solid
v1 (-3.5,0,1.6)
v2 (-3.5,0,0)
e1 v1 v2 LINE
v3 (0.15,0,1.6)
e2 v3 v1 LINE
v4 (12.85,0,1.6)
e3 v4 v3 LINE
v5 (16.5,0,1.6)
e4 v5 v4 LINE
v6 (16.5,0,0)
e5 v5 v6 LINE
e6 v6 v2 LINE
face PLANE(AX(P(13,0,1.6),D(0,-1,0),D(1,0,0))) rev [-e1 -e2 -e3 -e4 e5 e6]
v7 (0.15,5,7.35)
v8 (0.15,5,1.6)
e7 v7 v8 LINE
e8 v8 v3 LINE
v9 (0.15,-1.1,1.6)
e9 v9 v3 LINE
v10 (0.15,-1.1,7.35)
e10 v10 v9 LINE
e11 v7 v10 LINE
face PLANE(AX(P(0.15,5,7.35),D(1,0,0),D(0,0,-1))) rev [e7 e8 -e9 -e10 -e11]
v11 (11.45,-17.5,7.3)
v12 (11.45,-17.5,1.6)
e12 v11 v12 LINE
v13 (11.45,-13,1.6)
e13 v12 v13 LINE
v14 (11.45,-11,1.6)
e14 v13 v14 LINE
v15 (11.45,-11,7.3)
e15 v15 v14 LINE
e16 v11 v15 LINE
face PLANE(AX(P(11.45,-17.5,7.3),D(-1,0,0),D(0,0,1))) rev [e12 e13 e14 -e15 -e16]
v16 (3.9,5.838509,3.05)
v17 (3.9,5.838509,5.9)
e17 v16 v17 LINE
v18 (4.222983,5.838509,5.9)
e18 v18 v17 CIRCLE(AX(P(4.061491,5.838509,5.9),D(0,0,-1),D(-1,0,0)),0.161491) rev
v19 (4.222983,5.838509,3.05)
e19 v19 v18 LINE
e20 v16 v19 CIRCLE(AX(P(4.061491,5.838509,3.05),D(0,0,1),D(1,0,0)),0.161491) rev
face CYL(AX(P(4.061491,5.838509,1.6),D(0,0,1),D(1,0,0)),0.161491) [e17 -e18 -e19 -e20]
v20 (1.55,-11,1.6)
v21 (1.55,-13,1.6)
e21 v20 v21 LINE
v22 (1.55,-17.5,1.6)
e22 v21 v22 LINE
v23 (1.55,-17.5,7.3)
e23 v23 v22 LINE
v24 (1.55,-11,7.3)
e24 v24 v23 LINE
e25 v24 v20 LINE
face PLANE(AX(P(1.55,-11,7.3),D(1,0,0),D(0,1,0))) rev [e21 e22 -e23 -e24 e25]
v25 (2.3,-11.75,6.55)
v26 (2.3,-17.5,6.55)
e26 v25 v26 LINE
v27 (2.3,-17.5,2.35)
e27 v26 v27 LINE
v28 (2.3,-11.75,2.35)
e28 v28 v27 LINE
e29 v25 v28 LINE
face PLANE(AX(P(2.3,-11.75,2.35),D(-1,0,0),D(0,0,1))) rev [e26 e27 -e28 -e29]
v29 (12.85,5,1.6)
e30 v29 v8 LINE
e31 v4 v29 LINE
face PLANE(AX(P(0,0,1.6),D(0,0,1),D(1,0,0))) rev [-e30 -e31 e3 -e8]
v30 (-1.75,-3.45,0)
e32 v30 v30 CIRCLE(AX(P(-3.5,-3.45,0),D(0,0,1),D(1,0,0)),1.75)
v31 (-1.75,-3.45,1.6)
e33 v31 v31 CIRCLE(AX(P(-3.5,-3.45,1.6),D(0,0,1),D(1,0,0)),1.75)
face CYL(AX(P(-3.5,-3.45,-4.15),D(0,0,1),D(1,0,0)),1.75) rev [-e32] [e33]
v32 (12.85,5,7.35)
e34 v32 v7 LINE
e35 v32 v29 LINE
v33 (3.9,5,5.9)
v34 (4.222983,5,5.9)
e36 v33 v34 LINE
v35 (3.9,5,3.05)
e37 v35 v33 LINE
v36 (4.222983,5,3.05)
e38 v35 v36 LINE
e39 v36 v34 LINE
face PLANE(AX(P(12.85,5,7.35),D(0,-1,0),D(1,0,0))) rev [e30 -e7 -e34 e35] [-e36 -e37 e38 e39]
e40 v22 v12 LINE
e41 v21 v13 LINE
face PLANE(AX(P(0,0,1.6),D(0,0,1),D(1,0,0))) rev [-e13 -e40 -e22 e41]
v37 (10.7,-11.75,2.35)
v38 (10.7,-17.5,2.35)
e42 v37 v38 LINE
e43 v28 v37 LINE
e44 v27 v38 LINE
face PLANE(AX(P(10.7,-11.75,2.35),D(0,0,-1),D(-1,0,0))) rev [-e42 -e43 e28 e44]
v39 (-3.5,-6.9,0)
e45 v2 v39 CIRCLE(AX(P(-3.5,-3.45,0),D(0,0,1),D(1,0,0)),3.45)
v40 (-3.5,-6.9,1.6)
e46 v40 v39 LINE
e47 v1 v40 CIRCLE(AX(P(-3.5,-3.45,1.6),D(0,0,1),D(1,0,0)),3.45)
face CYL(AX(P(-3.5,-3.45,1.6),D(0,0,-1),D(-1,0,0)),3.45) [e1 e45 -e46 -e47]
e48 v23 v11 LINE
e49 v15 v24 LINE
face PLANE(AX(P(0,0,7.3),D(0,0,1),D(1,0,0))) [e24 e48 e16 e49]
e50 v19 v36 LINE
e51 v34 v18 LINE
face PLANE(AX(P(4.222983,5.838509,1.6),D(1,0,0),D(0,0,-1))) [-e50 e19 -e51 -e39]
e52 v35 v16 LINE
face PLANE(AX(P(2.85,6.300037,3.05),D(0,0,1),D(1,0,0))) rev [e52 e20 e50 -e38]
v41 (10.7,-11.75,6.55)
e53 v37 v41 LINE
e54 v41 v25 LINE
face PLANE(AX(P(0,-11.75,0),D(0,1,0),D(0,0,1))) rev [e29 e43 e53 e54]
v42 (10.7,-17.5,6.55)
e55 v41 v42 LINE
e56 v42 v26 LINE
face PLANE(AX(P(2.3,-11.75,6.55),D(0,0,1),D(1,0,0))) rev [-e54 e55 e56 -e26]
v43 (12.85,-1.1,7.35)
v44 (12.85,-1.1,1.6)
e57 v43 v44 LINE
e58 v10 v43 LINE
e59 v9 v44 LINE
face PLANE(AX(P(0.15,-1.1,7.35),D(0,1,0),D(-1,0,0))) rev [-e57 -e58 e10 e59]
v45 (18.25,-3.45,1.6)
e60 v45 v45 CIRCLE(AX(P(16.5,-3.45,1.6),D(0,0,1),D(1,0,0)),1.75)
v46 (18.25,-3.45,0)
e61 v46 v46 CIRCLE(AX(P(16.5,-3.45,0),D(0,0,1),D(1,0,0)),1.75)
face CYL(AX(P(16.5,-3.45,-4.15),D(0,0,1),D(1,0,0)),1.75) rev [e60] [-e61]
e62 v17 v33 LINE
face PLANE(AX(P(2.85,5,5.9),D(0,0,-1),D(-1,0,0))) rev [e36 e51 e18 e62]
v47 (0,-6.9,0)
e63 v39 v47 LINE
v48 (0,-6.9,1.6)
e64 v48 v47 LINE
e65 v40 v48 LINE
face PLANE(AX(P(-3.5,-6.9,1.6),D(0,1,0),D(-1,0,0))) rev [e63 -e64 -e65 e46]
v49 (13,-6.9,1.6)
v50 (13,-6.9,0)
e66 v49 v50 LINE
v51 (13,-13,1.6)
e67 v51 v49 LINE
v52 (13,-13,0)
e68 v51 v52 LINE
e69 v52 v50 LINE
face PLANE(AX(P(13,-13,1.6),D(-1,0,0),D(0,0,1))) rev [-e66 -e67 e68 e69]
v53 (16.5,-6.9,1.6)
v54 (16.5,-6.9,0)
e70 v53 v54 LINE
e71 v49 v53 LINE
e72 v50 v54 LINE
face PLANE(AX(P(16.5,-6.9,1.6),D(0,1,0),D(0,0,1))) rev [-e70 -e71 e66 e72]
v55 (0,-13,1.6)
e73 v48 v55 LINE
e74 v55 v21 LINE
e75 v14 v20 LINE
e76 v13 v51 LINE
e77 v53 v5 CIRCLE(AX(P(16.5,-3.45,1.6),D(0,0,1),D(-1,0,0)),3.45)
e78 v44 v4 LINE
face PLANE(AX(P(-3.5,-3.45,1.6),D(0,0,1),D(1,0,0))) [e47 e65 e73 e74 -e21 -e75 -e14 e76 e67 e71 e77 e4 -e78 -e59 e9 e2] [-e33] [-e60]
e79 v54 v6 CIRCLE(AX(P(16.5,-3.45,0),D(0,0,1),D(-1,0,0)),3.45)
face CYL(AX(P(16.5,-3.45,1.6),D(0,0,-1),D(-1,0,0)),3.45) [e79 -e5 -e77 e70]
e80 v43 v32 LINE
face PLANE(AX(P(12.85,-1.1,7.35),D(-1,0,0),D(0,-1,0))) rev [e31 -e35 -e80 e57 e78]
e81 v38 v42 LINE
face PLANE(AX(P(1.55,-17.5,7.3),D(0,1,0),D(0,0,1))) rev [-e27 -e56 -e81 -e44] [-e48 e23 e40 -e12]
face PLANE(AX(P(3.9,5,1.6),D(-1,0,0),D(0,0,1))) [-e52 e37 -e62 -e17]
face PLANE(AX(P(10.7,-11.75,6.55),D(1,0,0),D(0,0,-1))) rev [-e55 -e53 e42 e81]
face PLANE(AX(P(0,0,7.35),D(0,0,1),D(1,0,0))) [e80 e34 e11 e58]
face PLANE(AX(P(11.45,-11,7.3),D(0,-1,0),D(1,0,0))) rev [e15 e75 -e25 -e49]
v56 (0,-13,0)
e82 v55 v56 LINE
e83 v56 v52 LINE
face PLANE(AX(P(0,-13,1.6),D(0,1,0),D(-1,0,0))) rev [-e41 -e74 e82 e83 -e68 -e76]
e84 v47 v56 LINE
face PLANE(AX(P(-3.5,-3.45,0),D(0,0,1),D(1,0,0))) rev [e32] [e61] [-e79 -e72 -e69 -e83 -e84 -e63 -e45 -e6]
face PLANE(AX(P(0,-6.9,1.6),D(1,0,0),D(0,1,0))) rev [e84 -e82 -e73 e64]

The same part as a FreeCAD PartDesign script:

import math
import FreeCAD as App
import Part
import Sketcher

V = App.Vector
Q = App.Units.Quantity


def add_polygon(sketch, points):
    """Adds a closed chain of lines whose ends are joined by coincident constraints."""
    first, n = sketch.GeometryCount, len(points)
    for a, b in zip(points, points[1:] + points[:1]):
        sketch.addGeometry(Part.LineSegment(App.Vector(*a, 0), App.Vector(*b, 0)), False)
    for i in range(n):
        sketch.addConstraint(Sketcher.Constraint("Coincident", first + i, 2, first + (i + 1) % n, 1))

doc = App.newDocument("Part")
body = doc.addObject("PartDesign::Body", "Body")

# Sketch on XY plane
sketch1 = body.newObject("Sketcher::SketchObject", "Sketch")
sketch1.AttachmentSupport = (doc.getObject("XY_Plane"), [""])
sketch1.MapMode = "FlatFace"
sketch1.addGeometry([
    Part.LineSegment(V(0, -6.9, 0), V(0, -13, 0)),  # 0
    Part.LineSegment(V(0, -13, 0), V(13, -13, 0)),  # 1
    Part.LineSegment(V(13, -13, 0), V(13, -6.9, 0)),  # 2
    Part.LineSegment(V(13, -6.9, 0), V(16.5, -6.9, 0)),  # 3
    Part.ArcOfCircle(Part.Circle(V(16.5, -3.5, 0), V(0, 0, 1), 3.5), math.radians(-90), math.radians(90)),  # 4
    Part.LineSegment(V(16.5, 0, 0), V(-3.5, 0, 0)),  # 5
    Part.ArcOfCircle(Part.Circle(V(-3.5, -3.5, 0), V(0, 0, 1), 3.5), math.radians(90), math.radians(270)),  # 6
    Part.LineSegment(V(-3.5, -6.9, 0), V(0, -6.9, 0)),  # 7
], False)
sketch1.addConstraint([
    Sketcher.Constraint("Coincident", 0, 2, 1, 1),
    Sketcher.Constraint("Coincident", 1, 2, 2, 1),
    Sketcher.Constraint("Coincident", 2, 2, 3, 1),
    Sketcher.Constraint("Tangent", 3, 2, 4, 1),
    Sketcher.Constraint("Tangent", 4, 2, 5, 1),
    Sketcher.Constraint("Tangent", 5, 2, 6, 1),
    Sketcher.Constraint("Tangent", 6, 2, 7, 1),
    Sketcher.Constraint("Coincident", 7, 2, 0, 1),
    Sketcher.Constraint("Vertical", 0),
    Sketcher.Constraint("Horizontal", 1),
    Sketcher.Constraint("Vertical", 2),
    Sketcher.Constraint("Horizontal", 3),
    Sketcher.Constraint("Horizontal", 5),
    Sketcher.Constraint("Horizontal", 7),
    Sketcher.Constraint("Equal", 4, 6),
    Sketcher.Constraint("PointOnObject", 0, 2, -2),
    Sketcher.Constraint("PointOnObject", 4, 2, -1),
    Sketcher.Constraint("Equal", 3, 7),
    Sketcher.Constraint("DistanceX", 1, 1, 1, 2, Q("13 mm")),
    Sketcher.Constraint("DistanceX", 5, 2, 5, 1, Q("20 mm")),
    Sketcher.Constraint("Radius", 4, Q("3.45 mm")),
    Sketcher.Constraint("DistanceY", 0, 2, 0, 1, Q("6.1 mm")),
])
pad1 = body.newObject("PartDesign::Pad", "Pad")
pad1.Profile = sketch1
pad1.Length = 1.6

# Sketch on XY plane
sketch2 = body.newObject("Sketcher::SketchObject", "Sketch001")
sketch2.AttachmentSupport = (doc.getObject("XY_Plane"), [""])
sketch2.MapMode = "FlatFace"
sketch2.AttachmentOffset = App.Placement(V(0, 0, 1.6), App.Rotation())
add_polygon(sketch2, [(2, -11), (2, -18), (11, -18), (11, -11)])  # lines 0-3
sketch2.addConstraint([
    Sketcher.Constraint("Vertical", 0),
    Sketcher.Constraint("Horizontal", 1),
    Sketcher.Constraint("Vertical", 2),
    Sketcher.Constraint("Horizontal", 3),
    Sketcher.Constraint("DistanceX", 1, 1, 1, 2, Q("9.9 mm")),
    Sketcher.Constraint("DistanceY", 0, 2, 0, 1, Q("6.5 mm")),
    Sketcher.Constraint("DistanceY", 2, 2, -1, 1, Q("11 mm")),
    Sketcher.Constraint("DistanceX", -1, 1, 0, 2, Q("1.55 mm")),
])
pad2 = body.newObject("PartDesign::Pad", "Pad001")
pad2.Profile = sketch2
pad2.Length = 5.7

# Sketch on XZ plane
sketch3 = body.newObject("Sketcher::SketchObject", "Sketch002")
sketch3.AttachmentSupport = (doc.getObject("XZ_Plane"), [""])
sketch3.MapMode = "FlatFace"
sketch3.AttachmentOffset = App.Placement(V(0, 0, 17.5), App.Rotation())
add_polygon(sketch3, [(2.3, 6.5), (2.3, 2.4), (10.7, 2.4), (10.7, 6.5)])  # lines 0-3
sketch3.addConstraint([
    Sketcher.Constraint("Vertical", 0),
    Sketcher.Constraint("Horizontal", 1),
    Sketcher.Constraint("Vertical", 2),
    Sketcher.Constraint("Horizontal", 3),
    Sketcher.Constraint("DistanceX", 1, 1, 1, 2, Q("8.4 mm")),
    Sketcher.Constraint("DistanceY", 0, 2, 0, 1, Q("4.2 mm")),
    Sketcher.Constraint("DistanceX", -1, 1, 0, 2, Q("2.3 mm")),
    Sketcher.Constraint("DistanceY", -1, 1, 0, 2, Q("2.35 mm")),
])
pocket1 = body.newObject("PartDesign::Pocket", "Pocket")
pocket1.Profile = sketch3
pocket1.Length = 5.75

# Sketch on XY plane
sketch4 = body.newObject("Sketcher::SketchObject", "Sketch003")
sketch4.AttachmentSupport = (doc.getObject("XY_Plane"), [""])
sketch4.MapMode = "FlatFace"
sketch4.AttachmentOffset = App.Placement(V(0, 0, 1.6), App.Rotation())
sketch4.addGeometry([
    Part.Circle(V(-3.5, -3.5, 0), V(0, 0, 1), 1.8),
    Part.Circle(V(16.5, -3.5, 0), V(0, 0, 1), 1.8),
], False)
sketch4.addConstraint([
    Sketcher.Constraint("Equal", 0, 1),
    Sketcher.Constraint("Horizontal", 0, 3, 1, 3),
    Sketcher.Constraint("Diameter", 0, Q("3.5 mm")),
    Sketcher.Constraint("DistanceX", 0, 3, 1, 3, Q("20 mm")),
    Sketcher.Constraint("DistanceX", 0, 3, -1, 1, Q("3.5 mm")),
    Sketcher.Constraint("DistanceY", 0, 3, -1, 1, Q("3.45 mm")),
])
pocket2 = body.newObject("PartDesign::Pocket", "Pocket001")
pocket2.Profile = sketch4
pocket2.Length = 5.75

# Sketch on XY plane
sketch5 = body.newObject("Sketcher::SketchObject", "Sketch004")
sketch5.AttachmentSupport = (doc.getObject("XY_Plane"), [""])
sketch5.MapMode = "FlatFace"
sketch5.AttachmentOffset = App.Placement(V(0, 0, 1.6), App.Rotation())
add_polygon(sketch5, [(0, 5), (0, -1), (13, -1), (13, 5)])  # lines 0-3
sketch5.addConstraint([
    Sketcher.Constraint("Vertical", 0),
    Sketcher.Constraint("Horizontal", 1),
    Sketcher.Constraint("Vertical", 2),
    Sketcher.Constraint("Horizontal", 3),
    Sketcher.Constraint("DistanceX", 1, 1, 1, 2, Q("12.7 mm")),
    Sketcher.Constraint("DistanceY", 0, 2, 0, 1, Q("6.1 mm")),
    Sketcher.Constraint("DistanceY", -1, 1, 2, 2, Q("5 mm")),
    Sketcher.Constraint("DistanceX", -1, 1, 0, 2, Q("0.15 mm")),
])
pad3 = body.newObject("PartDesign::Pad", "Pad002")
pad3.Profile = sketch5
pad3.Length = 5.75

# Sketch on XY plane
sketch6 = body.newObject("Sketcher::SketchObject", "Sketch005")
sketch6.AttachmentSupport = (doc.getObject("XY_Plane"), [""])
sketch6.MapMode = "FlatFace"
sketch6.AttachmentOffset = App.Placement(V(0, 0, 7.35), App.Rotation())
sketch6.addGeometry([
    Part.LineSegment(V(3.9, 5.84, 0), V(3.9, 5, 0)),
    Part.LineSegment(V(3.9, 5, 0), V(4.22, 5, 0)),
    Part.LineSegment(V(4.22, 5, 0), V(4.22, 5.84, 0)),
    Part.ArcOfCircle(Part.Circle(V(4.06, 5.84, 0), V(0, 0, 1), 0.16), math.radians(0), math.radians(180)),
], False)
sketch6.addConstraint([
    Sketcher.Constraint("Coincident", 0, 2, 1, 1),
    Sketcher.Constraint("Coincident", 1, 2, 2, 1),
    Sketcher.Constraint("Tangent", 2, 2, 3, 1),
    Sketcher.Constraint("Tangent", 3, 2, 0, 1),
    Sketcher.Constraint("Vertical", 0),
    Sketcher.Constraint("Horizontal", 1),
    Sketcher.Constraint("Vertical", 2),
    Sketcher.Constraint("DistanceY", -1, 1, 0, 2, Q("5 mm")),
    Sketcher.Constraint("DistanceX", -1, 1, 0, 2, Q("3.9 mm")),
    Sketcher.Constraint("Radius", 3, Q("0.161491 mm")),
    Sketcher.Constraint("DistanceY", 0, 2, 0, 1, Q("0.838509 mm")),
])
pad4 = body.newObject("PartDesign::Pad", "Pad003")
pad4.Profile = sketch6
pad4.Length = 5.75
pad4.Reversed = True

# Sketch on YZ plane
sketch7 = body.newObject("Sketcher::SketchObject", "Sketch006")
sketch7.AttachmentSupport = (doc.getObject("YZ_Plane"), [""])
sketch7.MapMode = "FlatFace"
sketch7.AttachmentOffset = App.Placement(V(0, 0, 12.85), App.Rotation())
add_polygon(sketch7, [(6.3, 7.3), (5, 7.3), (5, 5.9), (6.3, 5.9)])  # lines 0-3
add_polygon(sketch7, [(6.3, 3), (5, 3), (5, 1.6), (6.3, 1.6)])  # lines 4-7
sketch7.addConstraint([
    Sketcher.Constraint("Horizontal", 0),
    Sketcher.Constraint("Vertical", 1),
    Sketcher.Constraint("Horizontal", 2),
    Sketcher.Constraint("Vertical", 3),
    Sketcher.Constraint("Horizontal", 4),
    Sketcher.Constraint("Vertical", 5),
    Sketcher.Constraint("Horizontal", 6),
    Sketcher.Constraint("Vertical", 7),
    Sketcher.Constraint("Vertical", 1, 2, 4, 2),
    Sketcher.Constraint("Vertical", 3, 2, 6, 2),
    Sketcher.Constraint("Equal", 3, 5),
    Sketcher.Constraint("DistanceX", -1, 1, 0, 2, Q("5 mm")),
    Sketcher.Constraint("DistanceY", 1, 2, 1, 1, Q("1.45 mm")),
    Sketcher.Constraint("DistanceY", -1, 1, 1, 2, Q("5.9 mm")),
    Sketcher.Constraint("DistanceY", -1, 1, 5, 2, Q("1.6 mm")),
    Sketcher.Constraint("DistanceX", 0, 2, 0, 1, Q("1.300037 mm")),
])
pocket3 = body.newObject("PartDesign::Pocket", "Pocket002")
pocket3.Profile = sketch7
pocket3.Length = 10

doc.recompute()
